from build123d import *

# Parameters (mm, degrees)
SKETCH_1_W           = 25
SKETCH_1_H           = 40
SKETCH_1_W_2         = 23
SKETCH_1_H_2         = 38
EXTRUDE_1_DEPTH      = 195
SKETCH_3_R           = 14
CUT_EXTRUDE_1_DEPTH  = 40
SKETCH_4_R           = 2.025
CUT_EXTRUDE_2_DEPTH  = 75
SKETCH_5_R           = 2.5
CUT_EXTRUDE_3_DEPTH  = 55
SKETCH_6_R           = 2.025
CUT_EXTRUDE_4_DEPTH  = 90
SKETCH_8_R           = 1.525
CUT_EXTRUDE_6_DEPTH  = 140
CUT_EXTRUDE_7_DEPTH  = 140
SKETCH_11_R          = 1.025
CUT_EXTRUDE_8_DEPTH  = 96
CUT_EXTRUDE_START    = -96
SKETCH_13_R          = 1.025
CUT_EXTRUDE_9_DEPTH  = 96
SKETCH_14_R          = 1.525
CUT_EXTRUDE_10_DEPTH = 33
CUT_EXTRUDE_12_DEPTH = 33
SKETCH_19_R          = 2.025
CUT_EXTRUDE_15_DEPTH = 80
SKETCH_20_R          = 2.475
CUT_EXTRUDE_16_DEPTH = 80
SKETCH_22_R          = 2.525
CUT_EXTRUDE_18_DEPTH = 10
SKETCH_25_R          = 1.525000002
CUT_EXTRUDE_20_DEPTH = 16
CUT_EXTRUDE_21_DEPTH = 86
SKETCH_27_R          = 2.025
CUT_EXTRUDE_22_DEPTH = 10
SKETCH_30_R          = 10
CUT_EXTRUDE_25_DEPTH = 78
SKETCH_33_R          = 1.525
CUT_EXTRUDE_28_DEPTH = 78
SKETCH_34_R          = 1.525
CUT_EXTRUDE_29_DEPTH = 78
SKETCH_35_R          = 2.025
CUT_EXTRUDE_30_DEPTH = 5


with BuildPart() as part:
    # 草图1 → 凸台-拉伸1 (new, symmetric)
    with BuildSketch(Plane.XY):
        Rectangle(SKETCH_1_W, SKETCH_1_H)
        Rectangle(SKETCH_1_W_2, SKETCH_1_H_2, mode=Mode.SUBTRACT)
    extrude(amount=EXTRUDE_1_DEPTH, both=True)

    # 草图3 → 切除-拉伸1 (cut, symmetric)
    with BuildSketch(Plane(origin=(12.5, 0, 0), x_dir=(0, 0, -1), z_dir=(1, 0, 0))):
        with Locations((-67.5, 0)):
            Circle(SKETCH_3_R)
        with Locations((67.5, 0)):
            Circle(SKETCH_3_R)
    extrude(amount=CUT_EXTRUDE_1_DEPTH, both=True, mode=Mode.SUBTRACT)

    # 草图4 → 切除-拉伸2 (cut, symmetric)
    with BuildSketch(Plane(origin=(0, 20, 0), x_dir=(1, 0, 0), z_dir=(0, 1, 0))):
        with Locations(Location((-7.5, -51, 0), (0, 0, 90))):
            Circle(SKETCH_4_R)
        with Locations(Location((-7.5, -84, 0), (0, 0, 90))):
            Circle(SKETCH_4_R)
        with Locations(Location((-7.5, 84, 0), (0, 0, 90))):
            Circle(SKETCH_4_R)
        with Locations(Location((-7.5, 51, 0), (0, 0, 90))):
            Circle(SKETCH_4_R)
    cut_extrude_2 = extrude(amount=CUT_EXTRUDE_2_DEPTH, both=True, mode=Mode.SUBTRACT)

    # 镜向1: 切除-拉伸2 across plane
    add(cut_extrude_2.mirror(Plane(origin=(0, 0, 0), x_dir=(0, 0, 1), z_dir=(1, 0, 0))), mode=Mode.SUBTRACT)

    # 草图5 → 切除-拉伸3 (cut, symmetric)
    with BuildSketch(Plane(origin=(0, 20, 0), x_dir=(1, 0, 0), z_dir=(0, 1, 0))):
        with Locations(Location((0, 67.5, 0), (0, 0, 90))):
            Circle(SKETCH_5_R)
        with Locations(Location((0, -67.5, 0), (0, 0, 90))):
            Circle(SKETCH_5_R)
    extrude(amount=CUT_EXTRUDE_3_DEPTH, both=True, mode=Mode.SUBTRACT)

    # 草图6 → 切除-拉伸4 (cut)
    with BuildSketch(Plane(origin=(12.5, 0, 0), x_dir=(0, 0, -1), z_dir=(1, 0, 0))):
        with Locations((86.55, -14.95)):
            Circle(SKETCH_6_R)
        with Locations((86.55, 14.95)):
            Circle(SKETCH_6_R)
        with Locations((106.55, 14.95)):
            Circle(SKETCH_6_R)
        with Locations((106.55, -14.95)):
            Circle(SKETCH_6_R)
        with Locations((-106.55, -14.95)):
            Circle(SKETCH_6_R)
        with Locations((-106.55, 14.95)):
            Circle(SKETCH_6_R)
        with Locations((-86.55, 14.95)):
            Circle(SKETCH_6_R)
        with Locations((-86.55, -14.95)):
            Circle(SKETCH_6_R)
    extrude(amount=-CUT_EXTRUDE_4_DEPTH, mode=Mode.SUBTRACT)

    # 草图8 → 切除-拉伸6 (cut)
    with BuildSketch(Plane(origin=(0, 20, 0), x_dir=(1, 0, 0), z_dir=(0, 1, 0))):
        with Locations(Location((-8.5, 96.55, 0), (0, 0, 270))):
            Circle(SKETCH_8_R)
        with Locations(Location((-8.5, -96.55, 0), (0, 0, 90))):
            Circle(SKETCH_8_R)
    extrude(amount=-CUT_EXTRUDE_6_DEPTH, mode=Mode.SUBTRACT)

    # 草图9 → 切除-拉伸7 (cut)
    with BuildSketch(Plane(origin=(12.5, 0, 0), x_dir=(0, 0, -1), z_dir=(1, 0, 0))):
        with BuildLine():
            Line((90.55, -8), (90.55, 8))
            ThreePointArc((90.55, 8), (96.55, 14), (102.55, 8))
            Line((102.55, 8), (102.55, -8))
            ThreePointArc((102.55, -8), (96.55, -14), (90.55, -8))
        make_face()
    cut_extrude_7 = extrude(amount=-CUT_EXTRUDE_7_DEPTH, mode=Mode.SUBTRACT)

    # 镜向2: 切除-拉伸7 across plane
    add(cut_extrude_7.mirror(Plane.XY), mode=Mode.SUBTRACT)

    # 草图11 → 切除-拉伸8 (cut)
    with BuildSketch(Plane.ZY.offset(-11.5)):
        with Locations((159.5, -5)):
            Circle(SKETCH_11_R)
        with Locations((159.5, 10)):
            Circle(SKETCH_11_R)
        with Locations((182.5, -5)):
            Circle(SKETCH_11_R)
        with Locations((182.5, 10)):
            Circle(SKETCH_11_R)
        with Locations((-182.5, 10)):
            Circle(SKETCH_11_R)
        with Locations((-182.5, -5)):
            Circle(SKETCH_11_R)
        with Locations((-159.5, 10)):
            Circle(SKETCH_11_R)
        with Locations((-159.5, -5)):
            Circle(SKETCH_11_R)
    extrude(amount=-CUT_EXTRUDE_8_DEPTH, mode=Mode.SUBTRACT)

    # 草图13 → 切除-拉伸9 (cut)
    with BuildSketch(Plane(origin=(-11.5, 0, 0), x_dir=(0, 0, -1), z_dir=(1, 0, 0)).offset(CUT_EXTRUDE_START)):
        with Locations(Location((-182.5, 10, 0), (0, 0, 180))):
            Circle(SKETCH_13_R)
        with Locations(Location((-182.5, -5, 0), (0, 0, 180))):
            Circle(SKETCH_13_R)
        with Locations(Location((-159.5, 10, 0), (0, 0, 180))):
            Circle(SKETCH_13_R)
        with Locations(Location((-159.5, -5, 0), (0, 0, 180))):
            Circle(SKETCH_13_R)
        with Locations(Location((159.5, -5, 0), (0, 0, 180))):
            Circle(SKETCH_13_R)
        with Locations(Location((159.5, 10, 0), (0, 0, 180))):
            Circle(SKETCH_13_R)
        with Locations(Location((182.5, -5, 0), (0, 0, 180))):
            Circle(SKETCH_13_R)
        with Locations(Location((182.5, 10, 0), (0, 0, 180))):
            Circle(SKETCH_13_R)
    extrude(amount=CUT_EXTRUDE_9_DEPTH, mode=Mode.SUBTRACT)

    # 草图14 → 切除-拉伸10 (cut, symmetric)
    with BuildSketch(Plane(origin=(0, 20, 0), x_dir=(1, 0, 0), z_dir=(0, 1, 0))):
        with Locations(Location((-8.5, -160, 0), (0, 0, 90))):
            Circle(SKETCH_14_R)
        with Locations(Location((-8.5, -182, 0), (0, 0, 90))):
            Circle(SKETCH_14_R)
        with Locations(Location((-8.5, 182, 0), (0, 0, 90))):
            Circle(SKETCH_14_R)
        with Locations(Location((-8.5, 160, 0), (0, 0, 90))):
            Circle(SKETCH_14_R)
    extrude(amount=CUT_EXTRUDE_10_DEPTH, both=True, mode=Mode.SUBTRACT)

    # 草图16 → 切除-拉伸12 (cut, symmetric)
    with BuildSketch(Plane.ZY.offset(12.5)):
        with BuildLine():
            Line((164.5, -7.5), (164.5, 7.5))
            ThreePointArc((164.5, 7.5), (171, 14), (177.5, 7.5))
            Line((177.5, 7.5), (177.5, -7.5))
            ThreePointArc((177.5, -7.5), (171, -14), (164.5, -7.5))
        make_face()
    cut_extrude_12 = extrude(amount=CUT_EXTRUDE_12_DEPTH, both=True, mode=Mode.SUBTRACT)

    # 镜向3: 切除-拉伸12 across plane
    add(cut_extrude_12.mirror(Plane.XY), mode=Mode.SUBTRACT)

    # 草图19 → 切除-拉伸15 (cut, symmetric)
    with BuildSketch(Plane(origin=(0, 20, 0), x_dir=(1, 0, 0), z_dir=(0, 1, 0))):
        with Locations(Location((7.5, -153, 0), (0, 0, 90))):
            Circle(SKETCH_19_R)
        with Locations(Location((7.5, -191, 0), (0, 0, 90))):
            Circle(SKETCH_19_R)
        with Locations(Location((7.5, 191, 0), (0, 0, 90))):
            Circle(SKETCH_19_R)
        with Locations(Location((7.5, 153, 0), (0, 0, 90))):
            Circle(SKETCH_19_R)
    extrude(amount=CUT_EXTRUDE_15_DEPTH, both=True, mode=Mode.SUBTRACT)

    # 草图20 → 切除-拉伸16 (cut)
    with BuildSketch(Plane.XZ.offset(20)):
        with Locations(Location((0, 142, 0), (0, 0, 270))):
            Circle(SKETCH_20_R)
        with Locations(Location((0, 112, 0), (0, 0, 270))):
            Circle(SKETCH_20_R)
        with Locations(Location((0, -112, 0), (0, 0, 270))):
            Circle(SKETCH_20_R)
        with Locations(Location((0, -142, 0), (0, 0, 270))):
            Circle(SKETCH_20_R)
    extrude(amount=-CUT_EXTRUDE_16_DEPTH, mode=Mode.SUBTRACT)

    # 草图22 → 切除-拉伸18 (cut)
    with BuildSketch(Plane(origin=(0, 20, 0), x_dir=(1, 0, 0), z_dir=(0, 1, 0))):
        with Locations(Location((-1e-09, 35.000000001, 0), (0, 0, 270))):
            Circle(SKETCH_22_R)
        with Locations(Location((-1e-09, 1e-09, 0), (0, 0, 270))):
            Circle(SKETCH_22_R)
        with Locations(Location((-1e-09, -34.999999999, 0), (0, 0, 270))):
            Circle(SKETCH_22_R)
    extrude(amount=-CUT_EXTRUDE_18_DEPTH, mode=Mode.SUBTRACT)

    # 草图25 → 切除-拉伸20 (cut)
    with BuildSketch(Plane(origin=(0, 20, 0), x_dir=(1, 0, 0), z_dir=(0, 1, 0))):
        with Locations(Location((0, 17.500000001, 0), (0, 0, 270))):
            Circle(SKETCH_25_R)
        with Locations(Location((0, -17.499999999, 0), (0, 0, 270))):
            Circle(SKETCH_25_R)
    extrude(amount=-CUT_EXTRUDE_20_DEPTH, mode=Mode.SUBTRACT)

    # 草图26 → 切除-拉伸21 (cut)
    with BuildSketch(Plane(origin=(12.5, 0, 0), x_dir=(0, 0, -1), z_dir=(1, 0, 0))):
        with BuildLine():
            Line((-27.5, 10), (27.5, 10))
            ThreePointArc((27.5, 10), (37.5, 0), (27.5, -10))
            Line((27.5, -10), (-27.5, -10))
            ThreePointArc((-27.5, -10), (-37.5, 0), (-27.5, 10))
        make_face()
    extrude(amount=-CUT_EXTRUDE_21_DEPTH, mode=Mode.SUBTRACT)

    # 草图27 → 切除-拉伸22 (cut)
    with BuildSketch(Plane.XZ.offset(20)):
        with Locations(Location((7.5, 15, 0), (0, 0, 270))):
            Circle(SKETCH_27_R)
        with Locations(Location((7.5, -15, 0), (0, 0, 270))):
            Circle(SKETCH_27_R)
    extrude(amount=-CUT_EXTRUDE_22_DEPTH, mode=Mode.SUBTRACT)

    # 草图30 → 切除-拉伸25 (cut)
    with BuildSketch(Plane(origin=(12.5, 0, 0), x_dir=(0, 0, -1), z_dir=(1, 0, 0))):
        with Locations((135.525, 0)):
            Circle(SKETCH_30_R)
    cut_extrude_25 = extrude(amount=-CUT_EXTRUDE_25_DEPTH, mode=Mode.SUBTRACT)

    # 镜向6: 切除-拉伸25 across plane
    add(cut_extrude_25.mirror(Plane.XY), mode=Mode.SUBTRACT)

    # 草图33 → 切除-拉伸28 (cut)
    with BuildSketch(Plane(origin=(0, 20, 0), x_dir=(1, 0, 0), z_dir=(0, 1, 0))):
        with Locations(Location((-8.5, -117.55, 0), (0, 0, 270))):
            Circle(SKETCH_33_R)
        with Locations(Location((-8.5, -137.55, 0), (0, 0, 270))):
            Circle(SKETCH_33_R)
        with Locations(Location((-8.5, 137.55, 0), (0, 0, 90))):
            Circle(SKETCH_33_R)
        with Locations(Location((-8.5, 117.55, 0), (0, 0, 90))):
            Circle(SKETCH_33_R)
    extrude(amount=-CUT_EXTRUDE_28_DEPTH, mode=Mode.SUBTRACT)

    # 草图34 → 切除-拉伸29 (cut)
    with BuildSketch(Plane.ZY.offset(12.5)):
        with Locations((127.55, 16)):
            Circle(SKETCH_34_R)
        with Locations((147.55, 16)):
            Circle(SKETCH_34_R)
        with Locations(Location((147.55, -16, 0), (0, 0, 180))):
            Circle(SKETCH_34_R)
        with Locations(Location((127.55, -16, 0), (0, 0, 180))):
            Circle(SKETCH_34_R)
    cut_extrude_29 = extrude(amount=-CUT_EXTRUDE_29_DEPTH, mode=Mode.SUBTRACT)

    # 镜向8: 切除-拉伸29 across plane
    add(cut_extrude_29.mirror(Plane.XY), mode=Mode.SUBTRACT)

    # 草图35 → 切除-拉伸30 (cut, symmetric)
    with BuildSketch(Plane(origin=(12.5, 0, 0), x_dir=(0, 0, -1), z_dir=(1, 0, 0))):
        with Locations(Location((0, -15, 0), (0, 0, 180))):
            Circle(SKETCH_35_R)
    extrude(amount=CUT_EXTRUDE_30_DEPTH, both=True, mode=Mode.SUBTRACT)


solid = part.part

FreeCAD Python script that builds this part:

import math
import FreeCAD as App
import Part
import Sketcher


def add_polygon(sketch, points):
    """Adds a closed chain of lines whose ends are joined by coincident constraints."""
    first, n = sketch.GeometryCount, len(points)
    for a, b in zip(points, points[1:] + points[:1]):
        sketch.addGeometry(Part.LineSegment(App.Vector(*a, 0), App.Vector(*b, 0)), False)
    for i in range(n):
        sketch.addConstraint(Sketcher.Constraint("Coincident", first + i, 2, first + (i + 1) % n, 1))

doc = App.newDocument("Part")
body = doc.addObject("PartDesign::Body", "Body")

sketch1 = body.newObject("Sketcher::SketchObject", "Sketch")
sketch1.AttachmentSupport = (doc.getObject("XY_Plane"), [""])
sketch1.MapMode = "FlatFace"
add_polygon(sketch1, [(-12, 20), (-12, -20), (12, -20), (12, 20)])
add_polygon(sketch1, [(12, -19), (-12, -19), (-12, 19), (12, 19)])
sketch1.addConstraint([
    Sketcher.Constraint("Vertical", 0),
    Sketcher.Constraint("Horizontal", 1),
    Sketcher.Constraint("Vertical", 2),
    Sketcher.Constraint("Horizontal", 3),
    Sketcher.Constraint("Horizontal", 4),
    Sketcher.Constraint("Vertical", 5),
    Sketcher.Constraint("Horizontal", 6),
    Sketcher.Constraint("Vertical", 7),
    Sketcher.Constraint("Symmetric", 0, 2, 2, 2, -1, 1),
    Sketcher.Constraint("Symmetric", 4, 2, 6, 2, -1, 1),
    Sketcher.Constraint("DistanceX", 1, 1, 1, 2, 25.0),
    Sketcher.Constraint("DistanceX", 4, 2, 4, 1, 23.0),
    Sketcher.Constraint("DistanceY", 0, 2, 0, 1, 40.0),
    Sketcher.Constraint("DistanceY", 5, 1, 5, 2, 38.0),
])
pad1 = body.newObject("PartDesign::Pad", "Pad")
pad1.Profile = sketch1
pad1.Length = 390
pad1.Midplane = True

sketch2 = body.newObject("Sketcher::SketchObject", "Sketch001")
sketch2.AttachmentSupport = (doc.getObject("YZ_Plane"), [""])
sketch2.MapMode = "FlatFace"
sketch2.AttachmentOffset = App.Placement(App.Vector(0, 0, 12.5), App.Rotation())
sketch2.addGeometry([
    Part.Circle(App.Vector(0, 68, 0), App.Vector(0, 0, 1), 14),
    Part.Circle(App.Vector(0, -68, 0), App.Vector(0, 0, 1), 14),
], False)
sketch2.addConstraint([
    Sketcher.Constraint("Equal", 0, 1),
    Sketcher.Constraint("Symmetric", 0, 3, 1, 3, -1, 1),
    Sketcher.Constraint("PointOnObject", 0, 3, -2),
    Sketcher.Constraint("Diameter", 0, 28.0),
    Sketcher.Constraint("DistanceY", 1, 3, 0, 3, 135.0),
])
pocket1 = body.newObject("PartDesign::Pocket", "Pocket")
pocket1.Profile = sketch2
pocket1.Length = 80
pocket1.Midplane = True

sketch3 = body.newObject("Sketcher::SketchObject", "Sketch002")
sketch3.AttachmentSupport = (doc.getObject("XZ_Plane"), [""])
sketch3.MapMode = "FlatFace"
sketch3.AttachmentOffset = App.Placement(App.Vector(0, 0, -20), App.Rotation())
sketch3.addGeometry([
    Part.Circle(App.Vector(-7.5, 51, 0), App.Vector(0, 0, 1), 2),
    Part.Circle(App.Vector(-7.5, 84, 0), App.Vector(0, 0, 1), 2),
    Part.Circle(App.Vector(-7.5, -84, 0), App.Vector(0, 0, 1), 2),
    Part.Circle(App.Vector(-7.5, -51, 0), App.Vector(0, 0, 1), 2),
], False)
sketch3.addConstraint([
    Sketcher.Constraint("Equal", 0, 1),
    Sketcher.Constraint("Equal", 1, 2),
    Sketcher.Constraint("Equal", 2, 3),
    Sketcher.Constraint("Symmetric", 1, 3, 2, 3, -1),
    Sketcher.Constraint("Symmetric", 0, 3, 3, 3, -1),
    Sketcher.Constraint("Vertical", 0, 3, 1, 3),
    Sketcher.Constraint("Diameter", 0, 4.05),
    Sketcher.Constraint("DistanceY", -1, 1, 0, 3, 51.0),
    Sketcher.Constraint("DistanceY", -1, 1, 1, 3, 84.0),
    Sketcher.Constraint("DistanceX", 0, 3, -1, 1, 7.5),
])
pocket2 = body.newObject("PartDesign::Pocket", "Pocket001")
pocket2.Profile = sketch3
pocket2.Length = 150
pocket2.Midplane = True
doc.recompute()

mirrored = body.newObject("PartDesign::Mirrored", "Mirrored")
mirrored.Originals = [pocket2]
mirrored.MirrorPlane = (doc.getObject("YZ_Plane"), [""])
body.Tip = mirrored

sketch4 = body.newObject("Sketcher::SketchObject", "Sketch003")
sketch4.AttachmentSupport = (doc.getObject("XZ_Plane"), [""])
sketch4.MapMode = "FlatFace"
sketch4.AttachmentOffset = App.Placement(App.Vector(0, 0, -20), App.Rotation())
sketch4.addGeometry([
    Part.Circle(App.Vector(0, -67.5, 0), App.Vector(0, 0, 1), 2.5),
    Part.Circle(App.Vector(0, 67.5, 0), App.Vector(0, 0, 1), 2.5),
], False)
sketch4.addConstraint([
    Sketcher.Constraint("Equal", 0, 1),
    Sketcher.Constraint("Symmetric", 0, 3, 1, 3, -1, 1),
    Sketcher.Constraint("PointOnObject", 0, 3, -2),
    Sketcher.Constraint("Diameter", 0, 5.0),
    Sketcher.Constraint("DistanceY", 0, 3, 1, 3, 135.0),
])
pocket3 = body.newObject("PartDesign::Pocket", "Pocket002")
pocket3.Profile = sketch4
pocket3.Length = 110
pocket3.Midplane = True

sketch5 = body.newObject("Sketcher::SketchObject", "Sketch004")
sketch5.AttachmentSupport = (doc.getObject("YZ_Plane"), [""])
sketch5.MapMode = "FlatFace"
sketch5.AttachmentOffset = App.Placement(App.Vector(0, 0, 12.5), App.Rotation())
sketch5.addGeometry([
    Part.Circle(App.Vector(-14.9, -86.5, 0), App.Vector(0, 0, 1), 2),
    Part.Circle(App.Vector(14.9, -86.5, 0), App.Vector(0, 0, 1), 2),
    Part.Circle(App.Vector(14.9, -106.5, 0), App.Vector(0, 0, 1), 2),
    Part.Circle(App.Vector(-14.9, -106.5, 0), App.Vector(0, 0, 1), 2),
    Part.Circle(App.Vector(-14.9, 106.5, 0), App.Vector(0, 0, 1), 2),
    Part.Circle(App.Vector(14.9, 106.5, 0), App.Vector(0, 0, 1), 2),
    Part.Circle(App.Vector(14.9, 86.5, 0), App.Vector(0, 0, 1), 2),
    Part.Circle(App.Vector(-14.9, 86.5, 0), App.Vector(0, 0, 1), 2),
], False)
sketch5.addConstraint([
    Sketcher.Constraint("Equal", 0, 1),
    Sketcher.Constraint("Equal", 1, 2),
    Sketcher.Constraint("Equal", 2, 3),
    Sketcher.Constraint("Equal", 3, 4),
    Sketcher.Constraint("Equal", 4, 5),
    Sketcher.Constraint("Equal", 5, 6),
    Sketcher.Constraint("Equal", 6, 7),
    Sketcher.Constraint("Symmetric", 2, 3, 4, 3, -1, 1),
    Sketcher.Constraint("Symmetric", 3, 3, 5, 3, -1, 1),
    Sketcher.Constraint("Symmetric", 0, 3, 6, 3, -1, 1),
    Sketcher.Constraint("Symmetric", 1, 3, 7, 3, -1, 1),
    Sketcher.Constraint("Symmetric", 0, 3, 1, 3, -2),
    Sketcher.Constraint("Symmetric", 2, 3, 3, 3, -2),
    Sketcher.Constraint("Vertical", 1, 3, 2, 3),
    Sketcher.Constraint("Diameter", 0, 4.05),
    Sketcher.Constraint("DistanceY", 2, 3, 1, 3, 20.0),
    Sketcher.Constraint("DistanceX", 0, 3, 1, 3, 29.9),
    Sketcher.Constraint("DistanceY", 0, 3, 4, 3, 193.1),
])
pocket4 = body.newObject("PartDesign::Pocket", "Pocket003")
pocket4.Profile = sketch5
pocket4.Length = 90

sketch6 = body.newObject("Sketcher::SketchObject", "Sketch005")
sketch6.AttachmentSupport = (doc.getObject("XZ_Plane"), [""])
sketch6.MapMode = "FlatFace"
sketch6.AttachmentOffset = App.Placement(App.Vector(0, 0, -20), App.Rotation())
sketch6.addGeometry([
    Part.Circle(App.Vector(-8.5, -96.5, 0), App.Vector(0, 0, 1), 1.5),
    Part.Circle(App.Vector(-8.5, 96.5, 0), App.Vector(0, 0, 1), 1.5),
], False)
sketch6.addConstraint([
    Sketcher.Constraint("Equal", 0, 1),
    Sketcher.Constraint("Symmetric", 0, 3, 1, 3, -1),
    Sketcher.Constraint("Diameter", 0, 3.05),
    Sketcher.Constraint("DistanceX", 0, 3, -1, 1, 8.5),
    Sketcher.Constraint("DistanceY", 0, 3, 1, 3, 193.1),
])
pocket5 = body.newObject("PartDesign::Pocket", "Pocket004")
pocket5.Profile = sketch6
pocket5.Length = 140
pocket5.Reversed = True

sketch7 = body.newObject("Sketcher::SketchObject", "Sketch006")
sketch7.AttachmentSupport = (doc.getObject("YZ_Plane"), [""])
sketch7.MapMode = "FlatFace"
sketch7.AttachmentOffset = App.Placement(App.Vector(0, 0, 12.5), App.Rotation())
sketch7.addGeometry([
    Part.LineSegment(App.Vector(8, -91, 0), App.Vector(-8, -91, 0)),
    Part.ArcOfCircle(Part.Circle(App.Vector(-8, -97, 0), App.Vector(0, 0, 1), 6), math.radians(90), math.radians(270)),
    Part.LineSegment(App.Vector(-8, -103, 0), App.Vector(8, -103, 0)),
    Part.ArcOfCircle(Part.Circle(App.Vector(8, -97, 0), App.Vector(0, 0, 1), 6), math.radians(-90), math.radians(90)),
], False)
sketch7.addConstraint([
    Sketcher.Constraint("Tangent", 0, 2, 1, 1),
    Sketcher.Constraint("Tangent", 1, 2, 2, 1),
    Sketcher.Constraint("Tangent", 2, 2, 3, 1),
    Sketcher.Constraint("Tangent", 3, 2, 0, 1),
    Sketcher.Constraint("Horizontal", 0),
    Sketcher.Constraint("Horizontal", 2),
    Sketcher.Constraint("Radius", 1, 6.0),
    Sketcher.Constraint("DistanceX", 0, 2, 0, 1, 16.0),
    Sketcher.Constraint("DistanceX", 1, 3, -1, 1, 8.0),
    Sketcher.Constraint("DistanceY", 1, 3, -1, 1, 96.55),
])
pocket6 = body.newObject("PartDesign::Pocket", "Pocket005")
pocket6.Profile = sketch7
pocket6.Length = 140
doc.recompute()

mirrored2 = body.newObject("PartDesign::Mirrored", "Mirrored001")
mirrored2.Originals = [pocket6]
mirrored2.MirrorPlane = (doc.getObject("XY_Plane"), [""])
body.Tip = mirrored2

sketch8 = body.newObject("Sketcher::SketchObject", "Sketch007")
sketch8.AttachmentSupport = (doc.getObject("YZ_Plane"), [""])
sketch8.MapMode = "FlatFace"
sketch8.AttachmentOffset = App.Placement(App.Vector(0, 0, 11.5), App.Rotation())
sketch8.addGeometry([
    Part.Circle(App.Vector(-5, 159.5, 0), App.Vector(0, 0, 1), 1),
    Part.Circle(App.Vector(10, 159.5, 0), App.Vector(0, 0, 1), 1),
    Part.Circle(App.Vector(-5, 182.5, 0), App.Vector(0, 0, 1), 1),
    Part.Circle(App.Vector(10, 182.5, 0), App.Vector(0, 0, 1), 1),
    Part.Circle(App.Vector(10, -182.5, 0), App.Vector(0, 0, 1), 1),
    Part.Circle(App.Vector(-5, -182.5, 0), App.Vector(0, 0, 1), 1),
    Part.Circle(App.Vector(10, -159.5, 0), App.Vector(0, 0, 1), 1),
    Part.Circle(App.Vector(-5, -159.5, 0), App.Vector(0, 0, 1), 1),
], False)
sketch8.addConstraint([
    Sketcher.Constraint("Equal", 0, 1),
    Sketcher.Constraint("Equal", 1, 2),
    Sketcher.Constraint("Equal", 2, 3),
    Sketcher.Constraint("Equal", 3, 4),
    Sketcher.Constraint("Equal", 4, 5),
    Sketcher.Constraint("Equal", 5, 6),
    Sketcher.Constraint("Equal", 6, 7),
    Sketcher.Constraint("Symmetric", 3, 3, 4, 3, -1),
    Sketcher.Constraint("Symmetric", 2, 3, 5, 3, -1),
    Sketcher.Constraint("Symmetric", 1, 3, 6, 3, -1),
    Sketcher.Constraint("Symmetric", 0, 3, 7, 3, -1),
    Sketcher.Constraint("Horizontal", 0, 3, 1, 3),
    Sketcher.Constraint("Horizontal", 2, 3, 3, 3),
    Sketcher.Constraint("Vertical", 0, 3, 2, 3),
    Sketcher.Constraint("Vertical", 1, 3, 3, 3),
    Sketcher.Constraint("Diameter", 0, 2.05),
    Sketcher.Constraint("DistanceX", 0, 3, -1, 1, 5.0),
    Sketcher.Constraint("DistanceX", -1, 1, 1, 3, 10.0),
    Sketcher.Constraint("DistanceY", 0, 3, 2, 3, 23.0),
    Sketcher.Constraint("DistanceY", 4, 3, 1, 3, 342.0),
])
pocket7 = body.newObject("PartDesign::Pocket", "Pocket006")
pocket7.Profile = sketch8
pocket7.Length = 96
pocket7.Reversed = True

sketch9 = body.newObject("Sketcher::SketchObject", "Sketch008")
sketch9.AttachmentSupport = (doc.getObject("YZ_Plane"), [""])
sketch9.MapMode = "FlatFace"
sketch9.AttachmentOffset = App.Placement(App.Vector(0, 0, -107.5), App.Rotation())
sketch9.addGeometry([
    Part.Circle(App.Vector(10, 182.5, 0), App.Vector(0, 0, 1), 1),
    Part.Circle(App.Vector(-5, 182.5, 0), App.Vector(0, 0, 1), 1),
    Part.Circle(App.Vector(10, 159.5, 0), App.Vector(0, 0, 1), 1),
    Part.Circle(App.Vector(-5, 159.5, 0), App.Vector(0, 0, 1), 1),
    Part.Circle(App.Vector(-5, -159.5, 0), App.Vector(0, 0, 1), 1),
    Part.Circle(App.Vector(10, -159.5, 0), App.Vector(0, 0, 1), 1),
    Part.Circle(App.Vector(-5, -182.5, 0), App.Vector(0, 0, 1), 1),
    Part.Circle(App.Vector(10, -182.5, 0), App.Vector(0, 0, 1), 1),
], False)
sketch9.addConstraint([
    Sketcher.Constraint("Equal", 0, 1),
    Sketcher.Constraint("Equal", 1, 2),
    Sketcher.Constraint("Equal", 2, 3),
    Sketcher.Constraint("Equal", 3, 4),
    Sketcher.Constraint("Equal", 4, 5),
    Sketcher.Constraint("Equal", 5, 6),
    Sketcher.Constraint("Equal", 6, 7),
    Sketcher.Constraint("Symmetric", 3, 3, 4, 3, -1),
    Sketcher.Constraint("Symmetric", 2, 3, 5, 3, -1),
    Sketcher.Constraint("Symmetric", 1, 3, 6, 3, -1),
    Sketcher.Constraint("Symmetric", 0, 3, 7, 3, -1),
    Sketcher.Constraint("Horizontal", 0, 3, 1, 3),
    Sketcher.Constraint("Horizontal", 2, 3, 3, 3),
    Sketcher.Constraint("Vertical", 0, 3, 2, 3),
    Sketcher.Constraint("Vertical", 1, 3, 3, 3),
    Sketcher.Constraint("Diameter", 0, 2.05),
    Sketcher.Constraint("DistanceX", -1, 1, 0, 3, 10.0),
    Sketcher.Constraint("DistanceX", 1, 3, -1, 1, 5.0),
    Sketcher.Constraint("DistanceY", 2, 3, 0, 3, 23.0),
    Sketcher.Constraint("DistanceY", 4, 3, 3, 3, 319.0),
])
pocket8 = body.newObject("PartDesign::Pocket", "Pocket007")
pocket8.Profile = sketch9
pocket8.Length = 96
pocket8.Reversed = True

sketch10 = body.newObject("Sketcher::SketchObject", "Sketch009")
sketch10.AttachmentSupport = (doc.getObject("XZ_Plane"), [""])
sketch10.MapMode = "FlatFace"
sketch10.AttachmentOffset = App.Placement(App.Vector(0, 0, -20), App.Rotation())
sketch10.addGeometry([
    Part.Circle(App.Vector(-8.5, 160, 0), App.Vector(0, 0, 1), 1.5),
    Part.Circle(App.Vector(-8.5, 182, 0), App.Vector(0, 0, 1), 1.5),
    Part.Circle(App.Vector(-8.5, -182, 0), App.Vector(0, 0, 1), 1.5),
    Part.Circle(App.Vector(-8.5, -160, 0), App.Vector(0, 0, 1), 1.5),
], False)
sketch10.addConstraint([
    Sketcher.Constraint("Equal", 0, 1),
    Sketcher.Constraint("Equal", 1, 2),
    Sketcher.Constraint("Equal", 2, 3),
    Sketcher.Constraint("Symmetric", 1, 3, 2, 3, -1),
    Sketcher.Constraint("Symmetric", 0, 3, 3, 3, -1),
    Sketcher.Constraint("Vertical", 0, 3, 1, 3),
    Sketcher.Constraint("Diameter", 0, 3.05),
    Sketcher.Constraint("DistanceY", -1, 1, 0, 3, 160.0),
    Sketcher.Constraint("DistanceY", -1, 1, 1, 3, 182.0),
    Sketcher.Constraint("DistanceX", 0, 3, -1, 1, 8.5),
])
pocket9 = body.newObject("PartDesign::Pocket", "Pocket008")
pocket9.Profile = sketch10
pocket9.Length = 66
pocket9.Midplane = True

sketch11 = body.newObject("Sketcher::SketchObject", "Sketch010")
sketch11.AttachmentSupport = (doc.getObject("YZ_Plane"), [""])
sketch11.MapMode = "FlatFace"
sketch11.AttachmentOffset = App.Placement(App.Vector(0, 0, -12.5), App.Rotation())
sketch11.addGeometry([
    Part.LineSegment(App.Vector(8, 164, 0), App.Vector(-8, 164, 0)),
    Part.ArcOfCircle(Part.Circle(App.Vector(-8, 171, 0), App.Vector(0, 0, 1), 6), math.radians(90), math.radians(270)),
    Part.LineSegment(App.Vector(-8, 178, 0), App.Vector(8, 178, 0)),
    Part.ArcOfCircle(Part.Circle(App.Vector(8, 171, 0), App.Vector(0, 0, 1), 6), math.radians(-90), math.radians(90)),
], False)
sketch11.addConstraint([
    Sketcher.Constraint("Tangent", 0, 2, 1, 2),
    Sketcher.Constraint("Tangent", 1, 1, 2, 1),
    Sketcher.Constraint("Tangent", 2, 2, 3, 2),
    Sketcher.Constraint("Tangent", 3, 1, 0, 1),
    Sketcher.Constraint("Horizontal", 0),
    Sketcher.Constraint("Horizontal", 2),
    Sketcher.Constraint("Radius", 1, 6.5),
    Sketcher.Constraint("DistanceX", 0, 2, 0, 1, 15.0),
    Sketcher.Constraint("DistanceY", -1, 1, 1, 3, 171.0),
    Sketcher.Constraint("DistanceX", 1, 3, -1, 1, 7.5),
])
pocket10 = body.newObject("PartDesign::Pocket", "Pocket009")
pocket10.Profile = sketch11
pocket10.Length = 66
pocket10.Midplane = True
doc.recompute()

mirrored3 = body.newObject("PartDesign::Mirrored", "Mirrored002")
mirrored3.Originals = [pocket10]
mirrored3.MirrorPlane = (doc.getObject("XY_Plane"), [""])
body.Tip = mirrored3

sketch12 = body.newObject("Sketcher::SketchObject", "Sketch011")
sketch12.AttachmentSupport = (doc.getObject("XZ_Plane"), [""])
sketch12.MapMode = "FlatFace"
sketch12.AttachmentOffset = App.Placement(App.Vector(0, 0, -20), App.Rotation())
sketch12.addGeometry([
    Part.Circle(App.Vector(7.5, 153, 0), App.Vector(0, 0, 1), 2),
    Part.Circle(App.Vector(7.5, 191, 0), App.Vector(0, 0, 1), 2),
    Part.Circle(App.Vector(7.5, -191, 0), App.Vector(0, 0, 1), 2),
    Part.Circle(App.Vector(7.5, -153, 0), App.Vector(0, 0, 1), 2),
], False)
sketch12.addConstraint([
    Sketcher.Constraint("Equal", 0, 1),
    Sketcher.Constraint("Equal", 1, 2),
    Sketcher.Constraint("Equal", 2, 3),
    Sketcher.Constraint("Symmetric", 1, 3, 2, 3, -1),
    Sketcher.Constraint("Symmetric", 0, 3, 3, 3, -1),
    Sketcher.Constraint("Vertical", 0, 3, 1, 3),
    Sketcher.Constraint("Diameter", 0, 4.05),
    Sketcher.Constraint("DistanceY", -1, 1, 0, 3, 153.0),
    Sketcher.Constraint("DistanceY", -1, 1, 1, 3, 191.0),
    Sketcher.Constraint("DistanceX", -1, 1, 0, 3, 7.5),
])
pocket11 = body.newObject("PartDesign::Pocket", "Pocket010")
pocket11.Profile = sketch12
pocket11.Length = 160
pocket11.Midplane = True

sketch13 = body.newObject("Sketcher::SketchObject", "Sketch012")
sketch13.AttachmentSupport = (doc.getObject("XZ_Plane"), [""])
sketch13.MapMode = "FlatFace"
sketch13.AttachmentOffset = App.Placement(App.Vector(0, 0, 20), App.Rotation())
sketch13.addGeometry([
    Part.Circle(App.Vector(0, 142, 0), App.Vector(0, 0, 1), 2.5),
    Part.Circle(App.Vector(0, 112, 0), App.Vector(0, 0, 1), 2.5),
    Part.Circle(App.Vector(0, -112, 0), App.Vector(0, 0, 1), 2.5),
    Part.Circle(App.Vector(0, -142, 0), App.Vector(0, 0, 1), 2.5),
], False)
sketch13.addConstraint([
    Sketcher.Constraint("Equal", 0, 1),
    Sketcher.Constraint("Equal", 1, 2),
    Sketcher.Constraint("Equal", 2, 3),
    Sketcher.Constraint("Symmetric", 1, 3, 2, 3, -1, 1),
    Sketcher.Constraint("Symmetric", 0, 3, 3, 3, -1, 1),
    Sketcher.Constraint("PointOnObject", 0, 3, -2),
    Sketcher.Constraint("PointOnObject", 1, 3, -2),
    Sketcher.Constraint("Diameter", 0, 4.95),
    Sketcher.Constraint("DistanceY", -1, 1, 0, 3, 142.0),
    Sketcher.Constraint("DistanceY", -1, 1, 1, 3, 112.0),
])
pocket12 = body.newObject("PartDesign::Pocket", "Pocket011")
pocket12.Profile = sketch13
pocket12.Length = 80

sketch14 = body.newObject("Sketcher::SketchObject", "Sketch013")
sketch14.AttachmentSupport = (doc.getObject("XZ_Plane"), [""])
sketch14.MapMode = "FlatFace"
sketch14.AttachmentOffset = App.Placement(App.Vector(0, 0, -20), App.Rotation())
sketch14.addGeometry([
    Part.Circle(App.Vector(0, -35, 0), App.Vector(0, 0, 1), 2.5),
    Part.Circle(App.Vector(0, 0, 0), App.Vector(0, 0, 1), 2.5),
    Part.Circle(App.Vector(0, 35, 0), App.Vector(0, 0, 1), 2.5),
], False)
sketch14.addConstraint([
    Sketcher.Constraint("Coincident", 1, 3, -1, 1),
    Sketcher.Constraint("Equal", 0, 1),
    Sketcher.Constraint("Equal", 1, 2),
    Sketcher.Constraint("Symmetric", 0, 3, 2, 3, -1, 1),
    Sketcher.Constraint("PointOnObject", 0, 3, -2),
    Sketcher.Constraint("Diameter", 0, 5.05),
    Sketcher.Constraint("DistanceY", 0, 3, -1, 1, 35.0),
])
pocket13 = body.newObject("PartDesign::Pocket", "Pocket012")
pocket13.Profile = sketch14
pocket13.Length = 10
pocket13.Reversed = True

sketch15 = body.newObject("Sketcher::SketchObject", "Sketch014")
sketch15.AttachmentSupport = (doc.getObject("XZ_Plane"), [""])
sketch15.MapMode = "FlatFace"
sketch15.AttachmentOffset = App.Placement(App.Vector(0, 0, -20), App.Rotation())
sketch15.addGeometry([
    Part.Circle(App.Vector(0, -17.5, 0), App.Vector(0, 0, 1), 1.5),
    Part.Circle(App.Vector(0, 17.5, 0), App.Vector(0, 0, 1), 1.5),
], False)
sketch15.addConstraint([
    Sketcher.Constraint("Equal", 0, 1),
    Sketcher.Constraint("Symmetric", 0, 3, 1, 3, -1, 1),
    Sketcher.Constraint("PointOnObject", 0, 3, -2),
    Sketcher.Constraint("Diameter", 0, 3.05),
    Sketcher.Constraint("DistanceY", 0, 3, 1, 3, 35.0),
])
pocket14 = body.newObject("PartDesign::Pocket", "Pocket013")
pocket14.Profile = sketch15
pocket14.Length = 16
pocket14.Reversed = True

sketch16 = body.newObject("Sketcher::SketchObject", "Sketch015")
sketch16.AttachmentSupport = (doc.getObject("YZ_Plane"), [""])
sketch16.MapMode = "FlatFace"
sketch16.AttachmentOffset = App.Placement(App.Vector(0, 0, 12.5), App.Rotation())
sketch16.addGeometry([
    Part.LineSegment(App.Vector(10, -28, 0), App.Vector(10, 28, 0)),
    Part.ArcOfCircle(Part.Circle(App.Vector(0, 28, 0), App.Vector(0, 0, 1), 10), math.radians(0), math.radians(180)),
    Part.LineSegment(App.Vector(-10, 28, 0), App.Vector(-10, -28, 0)),
    Part.ArcOfCircle(Part.Circle(App.Vector(0, -28, 0), App.Vector(0, 0, 1), 10), math.radians(180), math.radians(360)),
], False)
sketch16.addConstraint([
    Sketcher.Constraint("Tangent", 0, 2, 1, 1),
    Sketcher.Constraint("Tangent", 1, 2, 2, 1),
    Sketcher.Constraint("Tangent", 2, 2, 3, 1),
    Sketcher.Constraint("Tangent", 3, 2, 0, 1),
    Sketcher.Constraint("Vertical", 0),
    Sketcher.Constraint("Vertical", 2),
    Sketcher.Constraint("Symmetric", 1, 3, 3, 3, -1, 1),
    Sketcher.Constraint("Radius", 1, 10.0),
    Sketcher.Constraint("DistanceY", 0, 1, 0, 2, 55.0),
])
pocket15 = body.newObject("PartDesign::Pocket", "Pocket014")
pocket15.Profile = sketch16
pocket15.Length = 86

sketch17 = body.newObject("Sketcher::SketchObject", "Sketch016")
sketch17.AttachmentSupport = (doc.getObject("XZ_Plane"), [""])
sketch17.MapMode = "FlatFace"
sketch17.AttachmentOffset = App.Placement(App.Vector(0, 0, 20), App.Rotation())
sketch17.addGeometry([
    Part.Circle(App.Vector(7.5, 15, 0), App.Vector(0, 0, 1), 2),
    Part.Circle(App.Vector(7.5, -15, 0), App.Vector(0, 0, 1), 2),
], False)
sketch17.addConstraint([
    Sketcher.Constraint("Equal", 0, 1),
    Sketcher.Constraint("Symmetric", 0, 3, 1, 3, -1),
    Sketcher.Constraint("Diameter", 0, 4.05),
    Sketcher.Constraint("DistanceY", -1, 1, 0, 3, 15.0),
    Sketcher.Constraint("DistanceX", -1, 1, 0, 3, 7.5),
])
pocket16 = body.newObject("PartDesign::Pocket", "Pocket015")
pocket16.Profile = sketch17
pocket16.Length = 10

sketch18 = body.newObject("Sketcher::SketchObject", "Sketch017")
sketch18.AttachmentSupport = (doc.getObject("YZ_Plane"), [""])
sketch18.MapMode = "FlatFace"
sketch18.AttachmentOffset = App.Placement(App.Vector(0, 0, 12.5), App.Rotation())
sketch18.addGeometry(Part.Circle(App.Vector(0, -136, 0), App.Vector(0, 0, 1), 10), False)
sketch18.addConstraint([
    Sketcher.Constraint("PointOnObject", 0, 3, -2),
    Sketcher.Constraint("Diameter", 0, 20.0),
    Sketcher.Constraint("DistanceY", 0, 3, -1, 1, 135.525),
])
pocket17 = body.newObject("PartDesign::Pocket", "Pocket016")
pocket17.Profile = sketch18
pocket17.Length = 78
doc.recompute()

mirrored4 = body.newObject("PartDesign::Mirrored", "Mirrored003")
mirrored4.Originals = [pocket17]
mirrored4.MirrorPlane = (doc.getObject("XY_Plane"), [""])
body.Tip = mirrored4

sketch19 = body.newObject("Sketcher::SketchObject", "Sketch018")
sketch19.AttachmentSupport = (doc.getObject("XZ_Plane"), [""])
sketch19.MapMode = "FlatFace"
sketch19.AttachmentOffset = App.Placement(App.Vector(0, 0, -20), App.Rotation())
sketch19.addGeometry([
    Part.Circle(App.Vector(-8.5, 117.5, 0), App.Vector(0, 0, 1), 1.5),
    Part.Circle(App.Vector(-8.5, 137.6, 0), App.Vector(0, 0, 1), 1.5),
    Part.Circle(App.Vector(-8.5, -137.6, 0), App.Vector(0, 0, 1), 1.5),
    Part.Circle(App.Vector(-8.5, -117.5, 0), App.Vector(0, 0, 1), 1.5),
], False)
sketch19.addConstraint([
    Sketcher.Constraint("Equal", 0, 1),
    Sketcher.Constraint("Equal", 1, 2),
    Sketcher.Constraint("Equal", 2, 3),
    Sketcher.Constraint("Symmetric", 1, 3, 2, 3, -1),
    Sketcher.Constraint("Symmetric", 0, 3, 3, 3, -1),
    Sketcher.Constraint("Vertical", 0, 3, 1, 3),
    Sketcher.Constraint("Diameter", 0, 3.05),
    Sketcher.Constraint("DistanceY", 0, 3, 1, 3, 20.0),
    Sketcher.Constraint("DistanceX", 0, 3, -1, 1, 8.5),
    Sketcher.Constraint("DistanceY", 2, 3, 0, 3, 255.1),
])
pocket18 = body.newObject("PartDesign::Pocket", "Pocket017")
pocket18.Profile = sketch19
pocket18.Length = 78
pocket18.Reversed = True

sketch20 = body.newObject("Sketcher::SketchObject", "Sketch019")
sketch20.AttachmentSupport = (doc.getObject("YZ_Plane"), [""])
sketch20.MapMode = "FlatFace"
sketch20.AttachmentOffset = App.Placement(App.Vector(0, 0, -12.5), App.Rotation())
sketch20.addGeometry([
    Part.Circle(App.Vector(16, 127.5, 0), App.Vector(0, 0, 1), 1.5),
    Part.Circle(App.Vector(16, 147.6, 0), App.Vector(0, 0, 1), 1.5),
    Part.Circle(App.Vector(-16, 147.6, 0), App.Vector(0, 0, 1), 1.5),
    Part.Circle(App.Vector(-16, 127.5, 0), App.Vector(0, 0, 1), 1.5),
], False)
sketch20.addConstraint([
    Sketcher.Constraint("Equal", 0, 1),
    Sketcher.Constraint("Equal", 1, 2),
    Sketcher.Constraint("Equal", 2, 3),
    Sketcher.Constraint("Symmetric", 1, 3, 2, 3, -2),
    Sketcher.Constraint("Symmetric", 0, 3, 3, 3, -2),
    Sketcher.Constraint("Vertical", 0, 3, 1, 3),
    Sketcher.Constraint("Diameter", 0, 3.05),
    Sketcher.Constraint("DistanceX", -1, 1, 0, 3, 16.0),
    Sketcher.Constraint("DistanceY", 0, 3, 1, 3, 20.0),
    Sketcher.Constraint("DistanceY", -1, 1, 0, 3, 127.55),
])
pocket19 = body.newObject("PartDesign::Pocket", "Pocket018")
pocket19.Profile = sketch20
pocket19.Length = 78
pocket19.Reversed = True
doc.recompute()

mirrored5 = body.newObject("PartDesign::Mirrored", "Mirrored004")
mirrored5.Originals = [pocket19]
mirrored5.MirrorPlane = (doc.getObject("XY_Plane"), [""])
body.Tip = mirrored5

sketch21 = body.newObject("Sketcher::SketchObject", "Sketch020")
sketch21.AttachmentSupport = (doc.getObject("YZ_Plane"), [""])
sketch21.MapMode = "FlatFace"
sketch21.AttachmentOffset = App.Placement(App.Vector(0, 0, 12.5), App.Rotation())
sketch21.addGeometry(Part.Circle(App.Vector(-15, 0, 0), App.Vector(0, 0, 1), 2), False)
sketch21.addConstraint([
    Sketcher.Constraint("PointOnObject", 0, 3, -1),
    Sketcher.Constraint("Diameter", 0, 4.05),
    Sketcher.Constraint("DistanceX", 0, 3, -1, 1, 15.0),
])
pocket20 = body.newObject("PartDesign::Pocket", "Pocket019")
pocket20.Profile = sketch21
pocket20.Length = 10
pocket20.Midplane = True

doc.recompute()
